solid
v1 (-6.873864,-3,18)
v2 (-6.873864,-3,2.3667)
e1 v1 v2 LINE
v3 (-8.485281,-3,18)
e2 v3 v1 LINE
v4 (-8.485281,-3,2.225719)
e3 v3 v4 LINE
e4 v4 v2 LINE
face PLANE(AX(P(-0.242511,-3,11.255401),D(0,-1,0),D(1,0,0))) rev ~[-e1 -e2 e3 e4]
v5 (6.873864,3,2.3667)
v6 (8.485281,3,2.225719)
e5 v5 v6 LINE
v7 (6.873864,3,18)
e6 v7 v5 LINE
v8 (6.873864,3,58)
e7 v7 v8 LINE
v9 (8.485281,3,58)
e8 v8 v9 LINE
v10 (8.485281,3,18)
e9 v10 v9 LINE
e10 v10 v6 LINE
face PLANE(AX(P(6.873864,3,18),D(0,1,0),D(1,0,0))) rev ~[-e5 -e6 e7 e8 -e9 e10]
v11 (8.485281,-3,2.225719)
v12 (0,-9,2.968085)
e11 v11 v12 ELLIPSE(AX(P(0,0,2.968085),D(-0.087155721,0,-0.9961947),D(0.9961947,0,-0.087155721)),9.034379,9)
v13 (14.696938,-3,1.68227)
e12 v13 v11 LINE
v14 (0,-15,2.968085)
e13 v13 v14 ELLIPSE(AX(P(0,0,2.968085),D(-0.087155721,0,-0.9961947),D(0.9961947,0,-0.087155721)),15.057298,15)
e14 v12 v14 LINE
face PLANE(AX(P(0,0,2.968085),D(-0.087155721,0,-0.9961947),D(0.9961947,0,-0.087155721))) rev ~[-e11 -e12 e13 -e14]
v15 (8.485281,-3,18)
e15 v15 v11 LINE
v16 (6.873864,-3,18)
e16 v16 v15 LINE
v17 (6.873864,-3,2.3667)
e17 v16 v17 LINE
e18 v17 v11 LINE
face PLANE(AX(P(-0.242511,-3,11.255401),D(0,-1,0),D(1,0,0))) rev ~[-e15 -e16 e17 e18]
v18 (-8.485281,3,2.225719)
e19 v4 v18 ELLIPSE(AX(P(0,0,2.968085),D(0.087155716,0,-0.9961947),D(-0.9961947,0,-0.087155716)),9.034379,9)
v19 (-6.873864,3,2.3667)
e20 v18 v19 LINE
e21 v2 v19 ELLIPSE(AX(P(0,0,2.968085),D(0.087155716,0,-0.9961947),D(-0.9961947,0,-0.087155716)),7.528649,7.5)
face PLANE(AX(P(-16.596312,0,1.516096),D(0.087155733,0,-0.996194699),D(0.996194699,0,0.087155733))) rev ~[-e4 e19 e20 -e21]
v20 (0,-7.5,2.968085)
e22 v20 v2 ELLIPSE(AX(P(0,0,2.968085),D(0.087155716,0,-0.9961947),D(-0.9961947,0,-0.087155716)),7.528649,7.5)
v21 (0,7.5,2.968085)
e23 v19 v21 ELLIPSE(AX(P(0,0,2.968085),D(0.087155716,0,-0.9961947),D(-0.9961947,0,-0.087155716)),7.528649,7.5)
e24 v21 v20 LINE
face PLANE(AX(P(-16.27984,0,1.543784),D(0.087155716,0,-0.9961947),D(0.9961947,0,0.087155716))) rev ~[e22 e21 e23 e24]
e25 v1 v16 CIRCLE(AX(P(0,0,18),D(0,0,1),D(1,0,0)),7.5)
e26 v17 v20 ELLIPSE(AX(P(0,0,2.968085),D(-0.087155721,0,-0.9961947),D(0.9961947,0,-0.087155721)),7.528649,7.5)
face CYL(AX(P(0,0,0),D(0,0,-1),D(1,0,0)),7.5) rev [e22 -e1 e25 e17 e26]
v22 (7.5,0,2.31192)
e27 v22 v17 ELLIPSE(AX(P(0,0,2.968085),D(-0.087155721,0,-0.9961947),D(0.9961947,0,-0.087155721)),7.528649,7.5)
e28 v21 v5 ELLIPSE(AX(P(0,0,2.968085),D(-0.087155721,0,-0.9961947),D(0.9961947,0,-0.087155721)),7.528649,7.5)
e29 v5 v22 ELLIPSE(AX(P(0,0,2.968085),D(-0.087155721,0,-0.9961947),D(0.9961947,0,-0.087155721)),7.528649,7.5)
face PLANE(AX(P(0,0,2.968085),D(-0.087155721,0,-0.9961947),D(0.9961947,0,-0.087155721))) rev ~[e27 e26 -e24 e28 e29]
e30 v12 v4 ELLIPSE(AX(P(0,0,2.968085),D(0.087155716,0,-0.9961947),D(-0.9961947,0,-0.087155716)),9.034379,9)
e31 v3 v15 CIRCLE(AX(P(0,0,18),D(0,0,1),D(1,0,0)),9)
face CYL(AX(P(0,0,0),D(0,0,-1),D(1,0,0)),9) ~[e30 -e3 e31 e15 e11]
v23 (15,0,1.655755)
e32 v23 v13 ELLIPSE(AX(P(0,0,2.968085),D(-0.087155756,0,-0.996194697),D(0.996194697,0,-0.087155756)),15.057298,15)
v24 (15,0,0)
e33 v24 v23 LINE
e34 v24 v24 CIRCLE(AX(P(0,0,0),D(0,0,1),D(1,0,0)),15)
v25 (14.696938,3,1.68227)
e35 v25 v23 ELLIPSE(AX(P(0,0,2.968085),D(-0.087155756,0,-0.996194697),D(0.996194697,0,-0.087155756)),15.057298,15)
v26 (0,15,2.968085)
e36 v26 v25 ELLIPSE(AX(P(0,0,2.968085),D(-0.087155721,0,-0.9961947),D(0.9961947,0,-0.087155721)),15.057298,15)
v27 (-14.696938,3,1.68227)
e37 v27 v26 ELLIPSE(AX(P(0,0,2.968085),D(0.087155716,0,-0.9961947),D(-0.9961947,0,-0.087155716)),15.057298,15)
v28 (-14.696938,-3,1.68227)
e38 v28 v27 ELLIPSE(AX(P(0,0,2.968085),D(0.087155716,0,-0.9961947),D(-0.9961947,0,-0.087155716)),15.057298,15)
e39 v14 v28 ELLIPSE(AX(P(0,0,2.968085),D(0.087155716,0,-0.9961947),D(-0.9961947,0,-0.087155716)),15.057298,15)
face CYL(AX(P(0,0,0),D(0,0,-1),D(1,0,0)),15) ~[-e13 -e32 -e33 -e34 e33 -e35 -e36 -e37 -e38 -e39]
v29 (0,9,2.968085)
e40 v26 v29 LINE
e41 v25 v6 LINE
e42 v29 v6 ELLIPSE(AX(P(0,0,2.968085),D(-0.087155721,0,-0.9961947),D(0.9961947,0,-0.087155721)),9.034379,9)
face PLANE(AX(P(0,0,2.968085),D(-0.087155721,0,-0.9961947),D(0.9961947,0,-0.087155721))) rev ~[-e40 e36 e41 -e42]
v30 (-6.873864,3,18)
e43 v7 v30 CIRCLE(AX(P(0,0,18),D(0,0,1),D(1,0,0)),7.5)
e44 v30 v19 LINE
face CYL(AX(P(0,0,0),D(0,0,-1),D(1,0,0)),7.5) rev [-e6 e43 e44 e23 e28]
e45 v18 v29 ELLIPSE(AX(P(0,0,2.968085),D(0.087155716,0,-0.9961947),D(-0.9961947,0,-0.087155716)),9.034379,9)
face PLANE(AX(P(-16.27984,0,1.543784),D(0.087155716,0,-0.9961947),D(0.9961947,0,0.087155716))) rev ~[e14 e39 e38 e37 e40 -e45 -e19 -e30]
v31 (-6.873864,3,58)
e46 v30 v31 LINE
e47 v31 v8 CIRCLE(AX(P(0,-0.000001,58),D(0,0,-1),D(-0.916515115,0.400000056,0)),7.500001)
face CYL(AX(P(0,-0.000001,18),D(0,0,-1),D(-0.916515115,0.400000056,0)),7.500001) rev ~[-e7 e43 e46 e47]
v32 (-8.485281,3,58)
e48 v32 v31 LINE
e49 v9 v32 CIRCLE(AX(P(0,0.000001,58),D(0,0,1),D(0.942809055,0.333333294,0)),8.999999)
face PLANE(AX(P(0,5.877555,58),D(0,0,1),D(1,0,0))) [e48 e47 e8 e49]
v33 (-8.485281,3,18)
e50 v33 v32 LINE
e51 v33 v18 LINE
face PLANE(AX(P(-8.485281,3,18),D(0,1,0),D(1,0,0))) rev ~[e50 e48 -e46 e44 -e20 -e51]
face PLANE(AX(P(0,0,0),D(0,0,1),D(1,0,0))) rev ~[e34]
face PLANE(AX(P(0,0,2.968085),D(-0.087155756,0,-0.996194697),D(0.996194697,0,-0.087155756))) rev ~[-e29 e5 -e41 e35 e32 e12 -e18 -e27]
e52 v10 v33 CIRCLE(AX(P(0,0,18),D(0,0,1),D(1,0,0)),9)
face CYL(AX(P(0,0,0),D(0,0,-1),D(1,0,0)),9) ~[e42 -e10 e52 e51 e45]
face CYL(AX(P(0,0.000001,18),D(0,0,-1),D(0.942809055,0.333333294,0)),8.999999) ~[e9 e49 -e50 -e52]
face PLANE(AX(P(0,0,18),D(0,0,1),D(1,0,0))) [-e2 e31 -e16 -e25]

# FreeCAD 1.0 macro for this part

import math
import FreeCAD as App
import Part
import Sketcher
Q = App.Units.Quantity


def add_polygon(sketch, points):
    """Adds a closed chain of lines whose ends are joined by coincident constraints."""
    first, n = sketch.GeometryCount, len(points)
    for a, b in zip(points, points[1:] + points[:1]):
        sketch.addGeometry(Part.LineSegment(App.Vector(*a, 0), App.Vector(*b, 0)), False)
    for i in range(n):
        sketch.addConstraint(Sketcher.Constraint("Coincident", first + i, 2, first + (i + 1) % n, 1))

doc = App.newDocument("Part")
body = doc.addObject("PartDesign::Body", "Body")

# Sketch on XY plane
sketch1 = body.newObject("Sketcher::SketchObject", "Sketch")
sketch1.AttachmentSupport = (doc.getObject("XY_Plane"), [""])
sketch1.MapMode = "FlatFace"
sketch1.addGeometry(Part.Circle(App.Vector(0, 0, 0), App.Vector(0, 0, 1), 15), False)
sketch1.addConstraint([
    Sketcher.Constraint("Coincident", 0, 3, -1, 1),
    Sketcher.Constraint("Diameter", 0, Q("30 mm")),
])
pad1 = body.newObject("PartDesign::Pad", "Pad")
pad1.Profile = sketch1
pad1.Length = 3

# Sketch on XZ plane
sketch2 = body.newObject("Sketcher::SketchObject", "Sketch001")
sketch2.AttachmentSupport = (doc.getObject("XZ_Plane"), [""])
sketch2.MapMode = "FlatFace"
add_polygon(sketch2, [(-16.27984, 1.543784), (0, 2.968085), (16.030641, 1.565586), (16.030641, 3.755485), (-16.27984, 3.755485)])  # lines 0-4
sketch2.addConstraint([
    Sketcher.Constraint("Vertical", 2),
    Sketcher.Constraint("Horizontal", 3),
    Sketcher.Constraint("Vertical", 4),
    Sketcher.Constraint("PointOnObject", 0, 2, -2),
    Sketcher.Constraint("Angle", 0, Q("4.999998 deg")),
    Sketcher.Constraint("Angle", 1, Q("-4.999999 deg")),
    Sketcher.Constraint("DistanceY", 2, 1, 2, 2, Q("2.189899 mm")),
    Sketcher.Constraint("DistanceY", 4, 2, 4, 1, Q("2.211701 mm")),
    Sketcher.Constraint("DistanceX", 3, 2, 3, 1, Q("32.310481 mm")),
    Sketcher.Constraint("DistanceY", -1, 1, 0, 2, Q("2.968085 mm")),
])
pocket1 = body.newObject("PartDesign::Pocket", "Pocket")
pocket1.Profile = sketch2
pocket1.Length = 40
pocket1.Midplane = True

# Sketch on XY plane
sketch3 = body.newObject("Sketcher::SketchObject", "Sketch002")
sketch3.AttachmentSupport = (doc.getObject("XY_Plane"), [""])
sketch3.MapMode = "FlatFace"
sketch3.addGeometry([
    Part.Circle(App.Vector(0, 0, 0), App.Vector(0, 0, 1), 9),
    Part.Circle(App.Vector(0, 0, 0), App.Vector(0, 0, 1), 7.5),
], False)
sketch3.addConstraint([
    Sketcher.Constraint("Coincident", 0, 3, -1, 1),
    Sketcher.Constraint("Coincident", 1, 3, -1, 1),
    Sketcher.Constraint("Diameter", 0, Q("18 mm")),
    Sketcher.Constraint("Diameter", 1, Q("15 mm")),
])
pad2 = body.newObject("PartDesign::Pad", "Pad001")
pad2.Profile = sketch3
pad2.Length = 18

# Sketch on XZ plane
sketch4 = body.newObject("Sketcher::SketchObject", "Sketch003")
sketch4.AttachmentSupport = (doc.getObject("XZ_Plane"), [""])
sketch4.MapMode = "FlatFace"
add_polygon(sketch4, [(16.263659, 20.495596), (-16.880802, 20.495596), (-16.596312, 1.516096), (0, 2.968085), (16.263659, 1.545199)])  # lines 0-4
sketch4.addConstraint([
    Sketcher.Constraint("Horizontal", 0),
    Sketcher.Constraint("Vertical", 4),
    Sketcher.Constraint("PointOnObject", 2, 2, -2),
    Sketcher.Constraint("Angle", 2, Q("4.999999 deg")),
    Sketcher.Constraint("Angle", 3, Q("-5.000001 deg")),
    Sketcher.Constraint("DistanceX", 0, 2, 0, 1, Q("33.144461 mm")),
    Sketcher.Constraint("DistanceX", 0, 2, -1, 1, Q("16.880802 mm")),
    Sketcher.Constraint("DistanceY", -1, 1, 3, 2, Q("1.545199 mm")),
    Sketcher.Constraint("DistanceY", 1, 2, 0, 2, Q("18.9795 mm")),
    Sketcher.Constraint("DistanceY", 4, 1, 4, 2, Q("18.950397 mm")),
])
pocket2 = body.newObject("PartDesign::Pocket", "Pocket001")
pocket2.Profile = sketch4
pocket2.Length = 6
pocket2.Midplane = True

# Sketch on XY plane
sketch5 = body.newObject("Sketcher::SketchObject", "Sketch004")
sketch5.AttachmentSupport = (doc.getObject("XY_Plane"), [""])
sketch5.MapMode = "FlatFace"
sketch5.AttachmentOffset = App.Placement(App.Vector(0, 0, 18), App.Rotation())
sketch5.addGeometry([
    Part.LineSegment(App.Vector(6.873864, 3, 0), App.Vector(8.485281, 3, 0)),
    Part.ArcOfCircle(Part.Circle(App.Vector(0, 0.000001, 0), App.Vector(0, 0, 1), 8.999999), math.radians(19.471218), math.radians(160.528782)),
    Part.LineSegment(App.Vector(-8.485281, 3, 0), App.Vector(-6.873864, 3, 0)),
    Part.ArcOfCircle(Part.Circle(App.Vector(0, -0.000001, 0), App.Vector(0, 0, 1), 7.500001), math.radians(23.578182), math.radians(156.421818)),
], False)
sketch5.addConstraint([
    Sketcher.Constraint("Coincident", 0, 2, 1, 1),
    Sketcher.Constraint("Coincident", 1, 2, 2, 1),
    Sketcher.Constraint("Coincident", 2, 2, 3, 2),
    Sketcher.Constraint("Coincident", 3, 1, 0, 1),
    Sketcher.Constraint("Horizontal", 0),
    Sketcher.Constraint("Horizontal", 2),
    Sketcher.Constraint("Coincident", 1, 3, -1, 1),
    Sketcher.Constraint("Coincident", 3, 3, -1, 1),
    Sketcher.Constraint("Horizontal", 0, 2, 1, 2),
    Sketcher.Constraint("Radius", 1, Q("8.999999 mm")),
    Sketcher.Constraint("Radius", 3, Q("7.500001 mm")),
    Sketcher.Constraint("DistanceY", -1, 1, 0, 2, Q("3 mm")),
])
pad3 = body.newObject("PartDesign::Pad", "Pad002")
pad3.Profile = sketch5
pad3.Length = 40

doc.recompute()
